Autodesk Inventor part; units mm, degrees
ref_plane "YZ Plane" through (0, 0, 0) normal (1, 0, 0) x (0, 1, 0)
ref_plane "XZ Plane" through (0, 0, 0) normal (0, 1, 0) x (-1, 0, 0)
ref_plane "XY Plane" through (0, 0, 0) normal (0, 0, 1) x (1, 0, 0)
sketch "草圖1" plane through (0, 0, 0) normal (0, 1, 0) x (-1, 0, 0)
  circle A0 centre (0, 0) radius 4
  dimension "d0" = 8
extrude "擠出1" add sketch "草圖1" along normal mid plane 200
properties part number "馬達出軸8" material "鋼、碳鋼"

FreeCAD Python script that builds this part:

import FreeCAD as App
import Part
import Sketcher
Q = App.Units.Quantity

doc = App.newDocument("Part")
body = doc.addObject("PartDesign::Body", "Body")

sketch1 = body.newObject("Sketcher::SketchObject", "Sketch")
sketch1.AttachmentSupport = (doc.getObject("XZ_Plane"), [""])
sketch1.MapMode = "FlatFace"
sketch1.addGeometry(Part.Circle(App.Vector(0, 0, 0), App.Vector(0, 0, 1), 4), False)
sketch1.addConstraint(Sketcher.Constraint("Coincident", 0, 3, -1, 1))
sketch1.addConstraint(Sketcher.Constraint("Diameter", 0, Q("8 mm")))
pad1 = body.newObject("PartDesign::Pad", "Pad")
pad1.Profile = sketch1
pad1.Length = 200
pad1.Midplane = True

doc.recompute()
